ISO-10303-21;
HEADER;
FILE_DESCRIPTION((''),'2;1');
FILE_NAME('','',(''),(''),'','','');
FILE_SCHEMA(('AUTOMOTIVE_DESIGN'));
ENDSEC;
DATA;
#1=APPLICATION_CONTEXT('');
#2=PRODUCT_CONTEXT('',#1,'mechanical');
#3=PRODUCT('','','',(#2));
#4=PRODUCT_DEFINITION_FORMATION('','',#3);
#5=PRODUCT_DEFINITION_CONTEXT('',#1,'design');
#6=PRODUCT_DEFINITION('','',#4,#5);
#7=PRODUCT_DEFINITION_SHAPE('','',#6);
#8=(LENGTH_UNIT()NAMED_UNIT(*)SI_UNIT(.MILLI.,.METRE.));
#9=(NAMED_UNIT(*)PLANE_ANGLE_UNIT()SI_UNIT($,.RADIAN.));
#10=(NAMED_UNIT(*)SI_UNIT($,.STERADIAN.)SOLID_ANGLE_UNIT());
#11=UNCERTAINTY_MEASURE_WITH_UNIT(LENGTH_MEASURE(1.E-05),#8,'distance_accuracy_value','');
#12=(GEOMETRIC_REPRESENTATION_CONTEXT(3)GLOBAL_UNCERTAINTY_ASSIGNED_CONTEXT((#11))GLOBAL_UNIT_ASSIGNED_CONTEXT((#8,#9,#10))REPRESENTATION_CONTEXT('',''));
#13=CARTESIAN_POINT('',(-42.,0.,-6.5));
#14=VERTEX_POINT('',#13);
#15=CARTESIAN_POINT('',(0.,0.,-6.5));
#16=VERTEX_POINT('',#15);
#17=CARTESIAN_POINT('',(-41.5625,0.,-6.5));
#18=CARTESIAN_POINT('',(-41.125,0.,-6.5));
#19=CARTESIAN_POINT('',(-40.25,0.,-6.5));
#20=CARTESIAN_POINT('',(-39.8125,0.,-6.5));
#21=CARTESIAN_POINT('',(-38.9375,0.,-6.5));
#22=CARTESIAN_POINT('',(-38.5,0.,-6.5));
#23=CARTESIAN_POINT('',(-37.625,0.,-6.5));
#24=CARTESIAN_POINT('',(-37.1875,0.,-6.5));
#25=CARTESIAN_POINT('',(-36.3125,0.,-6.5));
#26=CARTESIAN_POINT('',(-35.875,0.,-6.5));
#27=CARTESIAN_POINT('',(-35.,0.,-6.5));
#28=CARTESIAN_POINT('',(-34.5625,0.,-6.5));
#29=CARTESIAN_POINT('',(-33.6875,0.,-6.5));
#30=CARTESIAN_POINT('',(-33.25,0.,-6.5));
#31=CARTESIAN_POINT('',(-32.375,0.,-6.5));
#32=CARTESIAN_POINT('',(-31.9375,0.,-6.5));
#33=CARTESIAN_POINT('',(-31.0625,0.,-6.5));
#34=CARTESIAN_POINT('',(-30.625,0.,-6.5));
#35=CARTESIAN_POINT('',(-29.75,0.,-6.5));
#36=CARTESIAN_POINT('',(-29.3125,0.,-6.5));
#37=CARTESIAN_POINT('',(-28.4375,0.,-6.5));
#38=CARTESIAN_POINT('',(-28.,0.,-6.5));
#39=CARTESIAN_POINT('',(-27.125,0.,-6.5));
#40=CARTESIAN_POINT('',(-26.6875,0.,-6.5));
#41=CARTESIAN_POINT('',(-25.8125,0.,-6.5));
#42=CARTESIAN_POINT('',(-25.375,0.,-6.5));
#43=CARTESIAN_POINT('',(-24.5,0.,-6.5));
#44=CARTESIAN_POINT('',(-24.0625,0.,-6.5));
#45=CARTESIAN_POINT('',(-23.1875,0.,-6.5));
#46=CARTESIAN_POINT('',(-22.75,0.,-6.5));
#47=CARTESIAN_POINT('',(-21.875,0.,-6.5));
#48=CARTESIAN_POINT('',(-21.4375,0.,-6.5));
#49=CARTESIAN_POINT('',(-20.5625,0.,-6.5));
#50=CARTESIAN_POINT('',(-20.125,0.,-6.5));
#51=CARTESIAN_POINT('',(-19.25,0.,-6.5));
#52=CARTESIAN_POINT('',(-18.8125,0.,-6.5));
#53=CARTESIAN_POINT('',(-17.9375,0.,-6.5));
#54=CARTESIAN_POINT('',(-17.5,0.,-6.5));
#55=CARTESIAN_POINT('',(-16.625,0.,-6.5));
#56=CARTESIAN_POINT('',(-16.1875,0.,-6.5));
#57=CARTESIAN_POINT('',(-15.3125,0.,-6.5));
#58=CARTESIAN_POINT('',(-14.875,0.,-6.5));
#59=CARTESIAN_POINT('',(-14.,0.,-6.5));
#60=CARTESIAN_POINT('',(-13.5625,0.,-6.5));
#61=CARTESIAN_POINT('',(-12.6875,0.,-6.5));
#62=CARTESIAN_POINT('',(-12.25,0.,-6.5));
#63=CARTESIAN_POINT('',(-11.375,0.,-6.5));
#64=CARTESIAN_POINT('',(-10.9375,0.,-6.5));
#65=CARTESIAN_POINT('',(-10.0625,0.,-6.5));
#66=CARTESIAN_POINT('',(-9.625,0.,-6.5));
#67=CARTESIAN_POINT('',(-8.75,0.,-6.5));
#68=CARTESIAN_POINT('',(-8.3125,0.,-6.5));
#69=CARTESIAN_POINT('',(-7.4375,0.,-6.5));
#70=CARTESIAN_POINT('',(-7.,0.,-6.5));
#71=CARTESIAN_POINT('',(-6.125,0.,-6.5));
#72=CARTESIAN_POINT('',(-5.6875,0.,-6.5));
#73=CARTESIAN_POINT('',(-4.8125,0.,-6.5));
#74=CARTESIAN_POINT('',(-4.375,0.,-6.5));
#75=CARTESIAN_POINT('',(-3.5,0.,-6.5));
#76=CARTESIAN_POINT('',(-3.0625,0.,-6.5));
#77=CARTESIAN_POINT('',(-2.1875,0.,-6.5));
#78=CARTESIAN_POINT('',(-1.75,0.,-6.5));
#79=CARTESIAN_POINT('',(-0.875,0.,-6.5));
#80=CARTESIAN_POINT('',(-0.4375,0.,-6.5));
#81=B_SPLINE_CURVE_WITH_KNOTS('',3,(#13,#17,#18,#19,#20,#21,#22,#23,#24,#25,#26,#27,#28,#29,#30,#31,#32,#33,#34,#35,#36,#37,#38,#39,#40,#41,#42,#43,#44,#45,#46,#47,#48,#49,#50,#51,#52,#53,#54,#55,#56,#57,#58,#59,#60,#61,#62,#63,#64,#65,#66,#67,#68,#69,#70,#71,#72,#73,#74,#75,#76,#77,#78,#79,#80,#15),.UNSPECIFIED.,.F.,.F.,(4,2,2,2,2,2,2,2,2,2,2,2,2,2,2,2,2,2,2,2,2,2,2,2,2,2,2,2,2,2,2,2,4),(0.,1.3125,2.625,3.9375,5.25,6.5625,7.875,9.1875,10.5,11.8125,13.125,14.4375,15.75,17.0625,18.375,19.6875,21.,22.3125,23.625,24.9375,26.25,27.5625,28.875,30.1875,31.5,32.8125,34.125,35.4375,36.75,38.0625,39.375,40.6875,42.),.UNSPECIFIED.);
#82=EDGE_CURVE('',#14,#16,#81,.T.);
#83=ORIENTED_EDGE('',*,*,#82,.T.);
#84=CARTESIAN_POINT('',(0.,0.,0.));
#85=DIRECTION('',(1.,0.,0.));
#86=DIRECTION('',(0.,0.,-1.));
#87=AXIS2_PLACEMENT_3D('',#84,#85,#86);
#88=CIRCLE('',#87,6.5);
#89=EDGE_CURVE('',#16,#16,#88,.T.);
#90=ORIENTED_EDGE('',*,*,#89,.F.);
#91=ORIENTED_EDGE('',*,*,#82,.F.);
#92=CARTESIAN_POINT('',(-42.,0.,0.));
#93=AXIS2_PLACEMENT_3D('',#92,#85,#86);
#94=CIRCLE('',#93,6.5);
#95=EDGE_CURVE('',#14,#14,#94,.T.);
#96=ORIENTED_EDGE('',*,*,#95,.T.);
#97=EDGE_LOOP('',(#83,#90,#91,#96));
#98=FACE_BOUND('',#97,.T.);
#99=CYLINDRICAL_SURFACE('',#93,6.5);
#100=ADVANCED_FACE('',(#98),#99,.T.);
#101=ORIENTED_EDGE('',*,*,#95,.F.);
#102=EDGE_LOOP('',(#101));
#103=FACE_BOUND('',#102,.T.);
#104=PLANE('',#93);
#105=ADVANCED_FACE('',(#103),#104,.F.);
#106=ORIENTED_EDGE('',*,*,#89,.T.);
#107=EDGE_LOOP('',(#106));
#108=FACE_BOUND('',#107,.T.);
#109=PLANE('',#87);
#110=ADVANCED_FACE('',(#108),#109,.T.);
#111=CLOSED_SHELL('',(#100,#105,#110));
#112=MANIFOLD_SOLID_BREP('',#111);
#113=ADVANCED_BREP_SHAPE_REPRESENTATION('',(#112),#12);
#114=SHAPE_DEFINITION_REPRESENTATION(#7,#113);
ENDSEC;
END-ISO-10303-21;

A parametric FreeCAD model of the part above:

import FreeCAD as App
import Part
import Sketcher
from FreeCAD import Vector

doc = App.newDocument("Part")
params = doc.addObject("Spreadsheet::Sheet", "Params")
for row, (alias, value) in enumerate([
    ("sketch1_diameter", "13 mm"),
    ("pad1_length", "42 mm"),
], start=1):
    params.set(f"A{row}", alias)
    params.set(f"B{row}", "=" + value)
    params.setAlias(f"B{row}", alias)

body = doc.addObject("PartDesign::Body", "Body")

sketch1 = body.newObject("Sketcher::SketchObject", "Sketch")
sketch1.AttachmentSupport = (doc.getObject("YZ_Plane"), [""])
sketch1.MapMode = "FlatFace"
sketch1.addGeometry(Part.Circle(Vector(0, 0, 0), Vector(0, 0, 1), 6.5), False)
sketch1.addConstraint([
    Sketcher.Constraint("Coincident", 0, 3, -1, 1),
    Sketcher.Constraint("Diameter", 0, 13.0),
])
sketch1.setExpression("Constraints[1]", "Params.sketch1_diameter")
pad1 = body.newObject("PartDesign::Pad", "Pad")
pad1.Profile = sketch1
pad1.setExpression("Length", "Params.pad1_length")
pad1.Reversed = True

doc.recompute()
